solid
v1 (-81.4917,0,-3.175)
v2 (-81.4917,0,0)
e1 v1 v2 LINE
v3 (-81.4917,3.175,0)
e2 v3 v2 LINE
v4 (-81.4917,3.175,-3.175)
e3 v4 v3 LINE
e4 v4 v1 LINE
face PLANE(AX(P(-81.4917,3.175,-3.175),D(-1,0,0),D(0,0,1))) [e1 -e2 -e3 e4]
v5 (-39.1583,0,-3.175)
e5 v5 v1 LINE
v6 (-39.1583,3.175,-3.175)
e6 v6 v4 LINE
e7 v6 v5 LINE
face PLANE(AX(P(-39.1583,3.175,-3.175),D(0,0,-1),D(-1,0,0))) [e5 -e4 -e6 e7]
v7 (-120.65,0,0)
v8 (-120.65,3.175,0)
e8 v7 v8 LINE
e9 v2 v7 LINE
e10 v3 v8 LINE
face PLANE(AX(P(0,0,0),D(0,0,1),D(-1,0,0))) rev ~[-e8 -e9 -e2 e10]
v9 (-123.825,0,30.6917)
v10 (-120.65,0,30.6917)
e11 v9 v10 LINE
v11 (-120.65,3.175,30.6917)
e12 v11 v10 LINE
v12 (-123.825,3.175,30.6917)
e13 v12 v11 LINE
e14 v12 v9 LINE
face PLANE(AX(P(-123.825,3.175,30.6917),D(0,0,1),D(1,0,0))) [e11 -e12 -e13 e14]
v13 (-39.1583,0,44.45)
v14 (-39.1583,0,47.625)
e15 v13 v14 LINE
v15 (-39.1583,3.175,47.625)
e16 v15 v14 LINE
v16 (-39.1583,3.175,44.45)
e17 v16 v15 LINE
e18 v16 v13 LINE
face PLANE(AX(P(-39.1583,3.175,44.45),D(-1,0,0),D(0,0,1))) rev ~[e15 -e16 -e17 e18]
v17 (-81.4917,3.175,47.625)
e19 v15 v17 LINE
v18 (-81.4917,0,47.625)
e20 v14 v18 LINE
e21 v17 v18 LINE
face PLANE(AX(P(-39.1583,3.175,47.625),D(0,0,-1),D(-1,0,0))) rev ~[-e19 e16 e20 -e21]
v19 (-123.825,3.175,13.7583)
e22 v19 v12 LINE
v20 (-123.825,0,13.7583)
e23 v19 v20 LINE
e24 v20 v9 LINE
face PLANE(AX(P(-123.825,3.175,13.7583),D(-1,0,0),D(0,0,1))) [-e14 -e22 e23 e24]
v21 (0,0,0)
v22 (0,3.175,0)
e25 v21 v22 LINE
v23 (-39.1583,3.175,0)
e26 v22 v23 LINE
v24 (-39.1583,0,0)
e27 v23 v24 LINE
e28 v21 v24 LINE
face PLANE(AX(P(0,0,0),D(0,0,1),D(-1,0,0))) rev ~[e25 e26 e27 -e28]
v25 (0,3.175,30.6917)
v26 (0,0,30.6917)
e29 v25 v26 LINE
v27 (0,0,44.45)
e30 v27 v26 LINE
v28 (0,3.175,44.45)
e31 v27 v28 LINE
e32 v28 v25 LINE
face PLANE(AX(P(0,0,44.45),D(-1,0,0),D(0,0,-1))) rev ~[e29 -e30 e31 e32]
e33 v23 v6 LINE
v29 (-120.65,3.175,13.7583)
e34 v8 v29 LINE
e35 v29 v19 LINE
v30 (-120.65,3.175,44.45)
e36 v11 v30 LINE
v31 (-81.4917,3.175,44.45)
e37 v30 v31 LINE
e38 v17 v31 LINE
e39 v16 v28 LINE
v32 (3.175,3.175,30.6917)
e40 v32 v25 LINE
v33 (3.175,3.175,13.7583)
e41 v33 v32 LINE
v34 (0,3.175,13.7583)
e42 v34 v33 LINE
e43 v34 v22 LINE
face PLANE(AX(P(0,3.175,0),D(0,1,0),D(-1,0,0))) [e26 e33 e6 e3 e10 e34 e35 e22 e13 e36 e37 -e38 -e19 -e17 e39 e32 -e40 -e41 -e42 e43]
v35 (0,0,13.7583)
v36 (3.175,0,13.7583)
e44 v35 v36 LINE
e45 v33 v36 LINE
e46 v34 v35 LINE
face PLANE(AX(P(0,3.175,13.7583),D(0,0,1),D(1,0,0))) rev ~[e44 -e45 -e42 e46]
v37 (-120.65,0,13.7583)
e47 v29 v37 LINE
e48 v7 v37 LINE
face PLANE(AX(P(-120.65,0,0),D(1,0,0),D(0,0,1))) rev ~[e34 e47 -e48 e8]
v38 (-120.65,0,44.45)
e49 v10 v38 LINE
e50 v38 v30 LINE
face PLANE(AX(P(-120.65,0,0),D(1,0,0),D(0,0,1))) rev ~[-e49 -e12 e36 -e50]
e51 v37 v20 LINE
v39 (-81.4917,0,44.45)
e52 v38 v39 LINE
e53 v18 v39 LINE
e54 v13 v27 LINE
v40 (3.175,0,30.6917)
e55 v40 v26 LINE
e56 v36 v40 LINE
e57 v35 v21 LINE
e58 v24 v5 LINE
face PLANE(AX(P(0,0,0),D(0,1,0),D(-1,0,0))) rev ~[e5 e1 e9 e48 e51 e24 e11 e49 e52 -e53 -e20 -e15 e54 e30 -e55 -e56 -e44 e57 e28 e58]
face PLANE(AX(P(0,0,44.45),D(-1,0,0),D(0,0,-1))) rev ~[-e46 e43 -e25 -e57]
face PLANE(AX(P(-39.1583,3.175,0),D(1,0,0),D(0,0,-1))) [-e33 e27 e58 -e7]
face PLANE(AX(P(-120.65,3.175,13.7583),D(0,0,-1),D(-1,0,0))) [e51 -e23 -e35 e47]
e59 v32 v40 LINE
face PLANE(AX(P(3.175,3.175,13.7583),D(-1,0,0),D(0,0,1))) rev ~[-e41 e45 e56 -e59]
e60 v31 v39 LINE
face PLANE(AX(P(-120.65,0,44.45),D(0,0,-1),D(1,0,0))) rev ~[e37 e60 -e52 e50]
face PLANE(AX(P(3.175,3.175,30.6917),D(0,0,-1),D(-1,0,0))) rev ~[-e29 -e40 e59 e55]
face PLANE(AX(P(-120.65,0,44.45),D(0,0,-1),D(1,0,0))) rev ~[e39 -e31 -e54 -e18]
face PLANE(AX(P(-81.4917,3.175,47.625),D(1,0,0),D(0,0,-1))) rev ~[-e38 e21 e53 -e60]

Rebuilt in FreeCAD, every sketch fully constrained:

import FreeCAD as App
import Part
import Sketcher
Q = App.Units.Quantity


def add_polygon(sketch, points):
    """Adds a closed chain of lines whose ends are joined by coincident constraints."""
    first, n = sketch.GeometryCount, len(points)
    for a, b in zip(points, points[1:] + points[:1]):
        sketch.addGeometry(Part.LineSegment(App.Vector(*a, 0), App.Vector(*b, 0)), False)
    for i in range(n):
        sketch.addConstraint(Sketcher.Constraint("Coincident", first + i, 2, first + (i + 1) % n, 1))

doc = App.newDocument("Part")
body = doc.addObject("PartDesign::Body", "Body")

sketch1 = body.newObject("Sketcher::SketchObject", "Sketch")
sketch1.AttachmentSupport = (doc.getObject("XZ_Plane"), [""])
sketch1.MapMode = "FlatFace"
add_polygon(sketch1, [(0, 44.45), (0, 0), (-120.65, 0), (-120.65, 44.45)])
sketch1.addConstraint(Sketcher.Constraint("Vertical", 0))
sketch1.addConstraint(Sketcher.Constraint("Horizontal", 1))
sketch1.addConstraint(Sketcher.Constraint("Vertical", 2))
sketch1.addConstraint(Sketcher.Constraint("Horizontal", 3))
sketch1.addConstraint(Sketcher.Constraint("Coincident", 0, 2, -1, 1))
sketch1.addConstraint(Sketcher.Constraint("DistanceX", 1, 2, 1, 1, Q("4.75 in")))
sketch1.addConstraint(Sketcher.Constraint("DistanceY", 0, 2, 0, 1, Q("1.75 in")))
pad1 = body.newObject("PartDesign::Pad", "Pad")
pad1.Profile = sketch1
pad1.Length = Q("0.125 in")
pad1.Reversed = True

sketch2 = body.newObject("Sketcher::SketchObject", "Sketch001")
sketch2.AttachmentSupport = (doc.getObject("XZ_Plane"), [""])
sketch2.MapMode = "FlatFace"
sketch2.AttachmentOffset = App.Placement(App.Vector(0, 0, -0.125 * 25.4), App.Rotation())
add_polygon(sketch2, [(-81.4917, 0), (-39.1583, 0), (-39.1583, -3.175), (-81.4917, -3.175)])
add_polygon(sketch2, [(3.175, 13.7583), (0, 13.7583), (0, 30.6917), (3.175, 30.6917)])
add_polygon(sketch2, [(-120.65, 30.6917), (-120.65, 13.7583), (-123.825, 13.7583), (-123.825, 30.6917)])
add_polygon(sketch2, [(-39.1583, 47.625), (-39.1583, 44.45), (-81.4917, 44.45), (-81.4917, 47.625)])
sketch2.addConstraint(Sketcher.Constraint("Horizontal", 0))
sketch2.addConstraint(Sketcher.Constraint("Vertical", 1))
sketch2.addConstraint(Sketcher.Constraint("Horizontal", 2))
sketch2.addConstraint(Sketcher.Constraint("Vertical", 3))
sketch2.addConstraint(Sketcher.Constraint("Horizontal", 4))
sketch2.addConstraint(Sketcher.Constraint("Vertical", 5))
sketch2.addConstraint(Sketcher.Constraint("Horizontal", 6))
sketch2.addConstraint(Sketcher.Constraint("Vertical", 7))
sketch2.addConstraint(Sketcher.Constraint("Vertical", 8))
sketch2.addConstraint(Sketcher.Constraint("Horizontal", 9))
sketch2.addConstraint(Sketcher.Constraint("Vertical", 10))
sketch2.addConstraint(Sketcher.Constraint("Horizontal", 11))
sketch2.addConstraint(Sketcher.Constraint("Vertical", 12))
sketch2.addConstraint(Sketcher.Constraint("Horizontal", 13))
sketch2.addConstraint(Sketcher.Constraint("Vertical", 14))
sketch2.addConstraint(Sketcher.Constraint("Horizontal", 15))
sketch2.addConstraint(Sketcher.Constraint("PointOnObject", 0, 2, -1))
sketch2.addConstraint(Sketcher.Constraint("PointOnObject", 4, 2, -2))
sketch2.addConstraint(Sketcher.Constraint("Horizontal", 7, 2, 8, 2))
sketch2.addConstraint(Sketcher.Constraint("Horizontal", 6, 2, 10, 2))
sketch2.addConstraint(Sketcher.Constraint("Vertical", 1, 2, 12, 2))
sketch2.addConstraint(Sketcher.Constraint("Vertical", 3, 2, 13, 2))
sketch2.addConstraint(Sketcher.Constraint("Equal", 6, 9))
sketch2.addConstraint(Sketcher.Constraint("Equal", 11, 1))
sketch2.addConstraint(Sketcher.Constraint("Equal", 3, 12))
sketch2.addConstraint(Sketcher.Constraint("DistanceX", 4, 2, 4, 1, Q("0.125 in")))
sketch2.addConstraint(Sketcher.Constraint("DistanceX", 0, 1, 0, 2, Q("42.3334 mm")))
sketch2.addConstraint(Sketcher.Constraint("DistanceY", 5, 1, 5, 2, Q("16.9334 mm")))
sketch2.addConstraint(Sketcher.Constraint("DistanceX", 0, 2, -1, 1, Q("39.1583 mm")))
sketch2.addConstraint(Sketcher.Constraint("DistanceY", -1, 1, 4, 2, Q("13.7583 mm")))
sketch2.addConstraint(Sketcher.Constraint("DistanceX", 8, 2, -1, 1, Q("4.75 in")))
sketch2.addConstraint(Sketcher.Constraint("DistanceY", -1, 1, 12, 2, Q("1.75 in")))
pad2 = body.newObject("PartDesign::Pad", "Pad001")
pad2.Profile = sketch2
pad2.Length = Q("0.125 in")

doc.recompute()
